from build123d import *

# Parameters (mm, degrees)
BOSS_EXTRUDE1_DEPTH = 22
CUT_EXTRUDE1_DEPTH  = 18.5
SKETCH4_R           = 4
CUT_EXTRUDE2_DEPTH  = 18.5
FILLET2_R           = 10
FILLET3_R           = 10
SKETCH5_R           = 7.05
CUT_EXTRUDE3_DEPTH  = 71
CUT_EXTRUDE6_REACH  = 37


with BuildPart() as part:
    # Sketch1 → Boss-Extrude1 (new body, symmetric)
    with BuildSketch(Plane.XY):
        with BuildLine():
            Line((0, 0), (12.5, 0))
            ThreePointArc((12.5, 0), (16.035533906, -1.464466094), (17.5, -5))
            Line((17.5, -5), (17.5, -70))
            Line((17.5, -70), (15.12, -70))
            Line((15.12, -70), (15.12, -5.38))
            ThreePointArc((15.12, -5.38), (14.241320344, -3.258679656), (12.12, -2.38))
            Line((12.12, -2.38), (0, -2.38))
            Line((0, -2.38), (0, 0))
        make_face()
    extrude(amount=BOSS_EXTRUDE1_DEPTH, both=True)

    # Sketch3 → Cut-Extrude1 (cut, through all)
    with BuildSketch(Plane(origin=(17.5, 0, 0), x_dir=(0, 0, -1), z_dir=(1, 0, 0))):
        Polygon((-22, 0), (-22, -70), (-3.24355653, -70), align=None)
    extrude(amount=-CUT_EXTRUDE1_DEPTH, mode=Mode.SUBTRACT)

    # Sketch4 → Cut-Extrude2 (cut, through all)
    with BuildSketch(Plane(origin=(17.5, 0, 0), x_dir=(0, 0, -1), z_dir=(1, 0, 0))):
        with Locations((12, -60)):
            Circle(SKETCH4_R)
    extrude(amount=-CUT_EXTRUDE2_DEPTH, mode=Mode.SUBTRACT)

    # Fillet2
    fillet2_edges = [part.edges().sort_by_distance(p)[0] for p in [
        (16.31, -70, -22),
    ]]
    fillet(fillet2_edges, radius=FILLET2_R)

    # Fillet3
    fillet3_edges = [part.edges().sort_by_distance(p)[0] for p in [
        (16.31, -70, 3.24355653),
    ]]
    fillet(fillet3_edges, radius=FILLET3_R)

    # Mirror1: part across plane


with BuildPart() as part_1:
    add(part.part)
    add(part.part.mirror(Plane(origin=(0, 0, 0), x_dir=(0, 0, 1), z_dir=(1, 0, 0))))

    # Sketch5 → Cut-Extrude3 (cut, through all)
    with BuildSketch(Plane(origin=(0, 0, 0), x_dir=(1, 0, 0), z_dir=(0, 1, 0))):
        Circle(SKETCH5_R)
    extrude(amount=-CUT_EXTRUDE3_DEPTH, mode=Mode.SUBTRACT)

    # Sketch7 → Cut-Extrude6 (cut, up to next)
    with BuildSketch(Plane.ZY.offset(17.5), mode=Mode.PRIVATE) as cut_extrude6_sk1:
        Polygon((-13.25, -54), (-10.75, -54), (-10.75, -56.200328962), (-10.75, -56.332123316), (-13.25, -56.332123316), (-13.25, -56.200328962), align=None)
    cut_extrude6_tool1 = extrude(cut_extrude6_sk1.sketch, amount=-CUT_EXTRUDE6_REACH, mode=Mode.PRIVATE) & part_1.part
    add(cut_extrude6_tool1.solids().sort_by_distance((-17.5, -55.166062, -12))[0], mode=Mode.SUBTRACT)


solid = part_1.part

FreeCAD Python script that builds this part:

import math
import FreeCAD as App
import Part
import Sketcher
Q = App.Units.Quantity


def edges_at(feature, points):
    """Names of the edges that pass closest to the given points."""
    edges = feature.Shape.Edges
    near = lambda p: min(range(len(edges)), key=lambda i: edges[i].distToShape(Part.Vertex(*p))[0])
    return sorted({f"Edge{near(p) + 1}" for p in points})

doc = App.newDocument("Part")
body = doc.addObject("PartDesign::Body", "Body")

# Sketch on XY plane
sketch1 = doc.addObject("Sketcher::SketchObject", "Sketch")
body.addObject(sketch1)
sketch1.AttachmentSupport = (doc.XY_Plane, [""])
sketch1.MapMode = "FlatFace"
sketch1.addGeometry([
    Part.LineSegment(App.Vector(12.5, 0, 0), App.Vector(0, 0, 0)),  # 0
    Part.LineSegment(App.Vector(0, 0, 0), App.Vector(0, -2.4, 0)),  # 1
    Part.LineSegment(App.Vector(0, -2.4, 0), App.Vector(12.1, -2.4, 0)),  # 2
    Part.ArcOfCircle(Part.Circle(App.Vector(12.1, -5.4, 0), App.Vector(0, 0, 1), 3), math.radians(0), math.radians(90)),  # 3
    Part.LineSegment(App.Vector(15.1, -5.4, 0), App.Vector(15.1, -70, 0)),  # 4
    Part.LineSegment(App.Vector(15.1, -70, 0), App.Vector(17.5, -70, 0)),  # 5
    Part.LineSegment(App.Vector(17.5, -70, 0), App.Vector(17.5, -5, 0)),  # 6
    Part.ArcOfCircle(Part.Circle(App.Vector(12.5, -5, 0), App.Vector(0, 0, 1), 5), math.radians(0), math.radians(90)),  # 7
], False)
sketch1.addConstraint([
    Sketcher.Constraint("Coincident", 0, 2, 1, 1),
    Sketcher.Constraint("Coincident", 1, 2, 2, 1),
    Sketcher.Constraint("Tangent", 2, 2, 3, 2),
    Sketcher.Constraint("Tangent", 3, 1, 4, 1),
    Sketcher.Constraint("Coincident", 4, 2, 5, 1),
    Sketcher.Constraint("Coincident", 5, 2, 6, 1),
    Sketcher.Constraint("Tangent", 6, 2, 7, 1),
    Sketcher.Constraint("Tangent", 7, 2, 0, 1),
    Sketcher.Constraint("Horizontal", 0),
    Sketcher.Constraint("Vertical", 1),
    Sketcher.Constraint("Horizontal", 2),
    Sketcher.Constraint("Vertical", 4),
    Sketcher.Constraint("Horizontal", 5),
    Sketcher.Constraint("Vertical", 6),
    Sketcher.Constraint("Coincident", 0, 2, -1, 1),
    Sketcher.Constraint("Equal", 5, 1),
    Sketcher.Constraint("Radius", 3, Q("3 mm")),
    Sketcher.Constraint("Radius", 7, Q("5 mm")),
    Sketcher.Constraint("DistanceY", 6, 1, 6, 2, Q("65 mm")),
    Sketcher.Constraint("DistanceX", 0, 2, 0, 1, Q("12.5 mm")),
    Sketcher.Constraint("DistanceX", 2, 1, 2, 2, Q("12.12 mm")),
])
pad1 = doc.addObject("PartDesign::Pad", "Pad")
body.addObject(pad1)
pad1.Profile = sketch1
pad1.Length = 44
pad1.Midplane = True

# Sketch on YZ plane
sketch2 = doc.addObject("Sketcher::SketchObject", "Sketch001")
body.addObject(sketch2)
sketch2.AttachmentSupport = (doc.YZ_Plane, [""])
sketch2.MapMode = "FlatFace"
sketch2.AttachmentOffset = App.Placement(App.Vector(0, 0, 17.5), App.Rotation())
sketch2.addGeometry([
    Part.LineSegment(App.Vector(0, 22, 0), App.Vector(-70, 22, 0)),
    Part.LineSegment(App.Vector(-70, 22, 0), App.Vector(-70, 3, 0)),
    Part.LineSegment(App.Vector(-70, 3, 0), App.Vector(0, 22, 0)),
], False)
sketch2.addConstraint([
    Sketcher.Constraint("Coincident", 0, 2, 1, 1),
    Sketcher.Constraint("Coincident", 1, 2, 2, 1),
    Sketcher.Constraint("Coincident", 2, 2, 0, 1),
    Sketcher.Constraint("Horizontal", 0),
    Sketcher.Constraint("Vertical", 1),
    Sketcher.Constraint("PointOnObject", 2, 2, -2),
    Sketcher.Constraint("DistanceX", 0, 2, 0, 1, Q("70 mm")),
    Sketcher.Constraint("Angle", 2, Q("15 deg")),
    Sketcher.Constraint("DistanceY", -1, 1, 0, 2, Q("22 mm")),
])
pocket1 = doc.addObject("PartDesign::Pocket", "Pocket")
body.addObject(pocket1)
pocket1.Profile = sketch2
pocket1.Type = "ThroughAll"

# Sketch on YZ plane
sketch3 = doc.addObject("Sketcher::SketchObject", "Sketch002")
body.addObject(sketch3)
sketch3.AttachmentSupport = (doc.YZ_Plane, [""])
sketch3.MapMode = "FlatFace"
sketch3.AttachmentOffset = App.Placement(App.Vector(0, 0, 17.5), App.Rotation())
sketch3.addGeometry(Part.Circle(App.Vector(-60, -12, 0), App.Vector(0, 0, 1), 4), False)
sketch3.addConstraint([
    Sketcher.Constraint("Diameter", 0, Q("8 mm")),
    Sketcher.Constraint("DistanceX", 0, 3, -1, 1, Q("60 mm")),
    Sketcher.Constraint("DistanceY", 0, 3, -1, 1, Q("12 mm")),
])
pocket2 = doc.addObject("PartDesign::Pocket", "Pocket001")
body.addObject(pocket2)
pocket2.Profile = sketch3
pocket2.Type = "ThroughAll"
doc.recompute()

fillet = doc.addObject("PartDesign::Fillet", "Fillet")
body.addObject(fillet)
fillet.Base = (pocket2, edges_at(pocket2, [(16.31, -70, -22)]))
fillet.Radius = 10
doc.recompute()

fillet2 = doc.addObject("PartDesign::Fillet", "Fillet001")
body.addObject(fillet2)
fillet2.Base = (fillet, edges_at(fillet, [(16.31, -70, 3.244)]))
fillet2.Radius = 10
body2 = doc.addObject("PartDesign::Body", "Body001")
doc.recompute()

body2.BaseFeature = body
doc.recompute()

mirroring = doc.addObject("Part::Mirroring", "Mirroring")
mirroring.Source = body
mirroring.Base = App.Vector(0, 0, 0)
mirroring.Normal = App.Vector(1, 0, 0)
body3 = doc.addObject("PartDesign::Body", "Body002")
body3.BaseFeature = mirroring
boolean = doc.addObject("PartDesign::Boolean", "Boolean")
body2.addObject(boolean)
boolean.Type = "Fuse"
boolean.addObjects([body3])
doc.recompute()

# Sketch on XZ plane
sketch4 = doc.addObject("Sketcher::SketchObject", "Sketch003")
body2.addObject(sketch4)
sketch4.AttachmentSupport = (doc.getObject("XZ_Plane001"), [""])
sketch4.MapMode = "FlatFace"
sketch4.addGeometry(Part.Circle(App.Vector(0, 0, 0), App.Vector(0, 0, 1), 7), False)
sketch4.addConstraint([
    Sketcher.Constraint("Coincident", 0, 3, -1, 1),
    Sketcher.Constraint("Diameter", 0, Q("14.1 mm")),
])
pocket3 = doc.addObject("PartDesign::Pocket", "Pocket002")
body2.addObject(pocket3)
pocket3.Profile = sketch4
pocket3.Type = "ThroughAll"
pocket3.Reversed = True

# Sketch on YZ plane
sketch5 = doc.addObject("Sketcher::SketchObject", "Sketch004")
body2.addObject(sketch5)
sketch5.AttachmentSupport = (doc.getObject("YZ_Plane001"), [""])
sketch5.MapMode = "FlatFace"
sketch5.AttachmentOffset = App.Placement(App.Vector(0, 0, -17.5), App.Rotation())
sketch5.addGeometry([
    Part.LineSegment(App.Vector(-54, -10.8, 0), App.Vector(-54, -13.2, 0)),
    Part.LineSegment(App.Vector(-54, -13.2, 0), App.Vector(-56.3, -13.2, 0)),
    Part.LineSegment(App.Vector(-56.3, -13.2, 0), App.Vector(-56.3, -10.8, 0)),
    Part.LineSegment(App.Vector(-56.3, -10.8, 0), App.Vector(-54, -10.8, 0)),
], False)
sketch5.addConstraint([
    Sketcher.Constraint("Coincident", 0, 2, 1, 1),
    Sketcher.Constraint("Coincident", 1, 2, 2, 1),
    Sketcher.Constraint("Coincident", 2, 2, 3, 1),
    Sketcher.Constraint("Coincident", 3, 2, 0, 1),
    Sketcher.Constraint("Vertical", 0),
    Sketcher.Constraint("Horizontal", 1),
    Sketcher.Constraint("Vertical", 2),
    Sketcher.Constraint("Horizontal", 3),
    Sketcher.Constraint("DistanceY", 0, 2, 0, 1, Q("2.5 mm")),
    Sketcher.Constraint("DistanceX", 0, 2, -1, 1, Q("54 mm")),
    Sketcher.Constraint("DistanceY", 0, 2, -1, 1, Q("13.25 mm")),
    Sketcher.Constraint("DistanceX", 1, 2, 1, 1, Q("2.332123 mm")),
])
pocket4 = doc.addObject("PartDesign::Pocket", "Pocket003")
body2.addObject(pocket4)
pocket4.Profile = sketch5
pocket4.Type = "UpToFirst"
pocket4.Reversed = True
mirroring.Visibility = False

doc.recompute()
